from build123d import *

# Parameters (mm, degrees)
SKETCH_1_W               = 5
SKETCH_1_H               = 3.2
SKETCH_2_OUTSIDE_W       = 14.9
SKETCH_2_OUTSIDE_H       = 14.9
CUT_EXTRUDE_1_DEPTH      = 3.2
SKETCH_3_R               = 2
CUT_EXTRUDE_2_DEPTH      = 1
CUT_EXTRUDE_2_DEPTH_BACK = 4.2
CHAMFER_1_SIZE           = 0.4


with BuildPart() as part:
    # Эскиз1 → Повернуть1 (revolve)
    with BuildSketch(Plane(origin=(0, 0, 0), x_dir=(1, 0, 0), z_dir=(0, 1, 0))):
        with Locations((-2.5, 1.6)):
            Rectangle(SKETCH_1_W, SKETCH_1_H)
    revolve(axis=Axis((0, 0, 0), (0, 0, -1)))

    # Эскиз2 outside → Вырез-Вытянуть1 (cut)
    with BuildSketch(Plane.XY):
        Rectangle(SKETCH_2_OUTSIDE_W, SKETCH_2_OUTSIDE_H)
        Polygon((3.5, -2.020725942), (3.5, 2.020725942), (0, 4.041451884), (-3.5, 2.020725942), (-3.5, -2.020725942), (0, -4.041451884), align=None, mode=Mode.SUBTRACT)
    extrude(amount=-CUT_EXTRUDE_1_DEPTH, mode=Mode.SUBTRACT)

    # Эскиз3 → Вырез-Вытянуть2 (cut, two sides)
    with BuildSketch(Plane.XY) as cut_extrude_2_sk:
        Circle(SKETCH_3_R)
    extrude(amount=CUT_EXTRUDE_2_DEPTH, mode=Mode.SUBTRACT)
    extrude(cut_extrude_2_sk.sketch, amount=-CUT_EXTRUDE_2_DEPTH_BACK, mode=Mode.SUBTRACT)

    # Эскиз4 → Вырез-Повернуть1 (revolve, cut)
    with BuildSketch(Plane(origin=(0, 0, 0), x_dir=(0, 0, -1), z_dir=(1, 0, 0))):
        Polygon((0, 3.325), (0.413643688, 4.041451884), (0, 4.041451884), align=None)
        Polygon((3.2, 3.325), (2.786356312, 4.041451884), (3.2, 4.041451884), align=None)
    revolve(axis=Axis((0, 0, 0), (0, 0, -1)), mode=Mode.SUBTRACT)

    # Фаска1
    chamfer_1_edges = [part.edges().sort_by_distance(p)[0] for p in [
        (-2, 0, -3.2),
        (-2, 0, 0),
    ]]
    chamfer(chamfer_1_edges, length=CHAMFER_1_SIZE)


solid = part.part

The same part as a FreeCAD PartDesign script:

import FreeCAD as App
import Part
import Sketcher
Q = App.Units.Quantity


def edges_at(feature, points):
    """Names of the edges that pass closest to the given points."""
    edges = feature.Shape.Edges
    near = lambda p: min(range(len(edges)), key=lambda i: edges[i].distToShape(Part.Vertex(*p))[0])
    return sorted({f"Edge{near(p) + 1}" for p in points})

doc = App.newDocument("Part")
body = doc.addObject("PartDesign::Body", "Body")

# Sketch on XZ plane
sketch1 = body.newObject("Sketcher::SketchObject", "Sketch")
sketch1.AttachmentSupport = (doc.getObject("XZ_Plane"), [""])
sketch1.MapMode = "FlatFace"
sketch1.addGeometry([
    Part.LineSegment(App.Vector(-5, -3.2, 0), App.Vector(-5, 0, 0)),
    Part.LineSegment(App.Vector(-5, 0, 0), App.Vector(0, 0, 0)),
    Part.LineSegment(App.Vector(0, 0, 0), App.Vector(0, -3.2, 0)),
    Part.LineSegment(App.Vector(0, -3.2, 0), App.Vector(-5, -3.2, 0)),
], False)
sketch1.addConstraint([
    Sketcher.Constraint("Coincident", 0, 2, 1, 1),
    Sketcher.Constraint("Coincident", 1, 2, 2, 1),
    Sketcher.Constraint("Coincident", 2, 2, 3, 1),
    Sketcher.Constraint("Coincident", 3, 2, 0, 1),
    Sketcher.Constraint("Vertical", 0),
    Sketcher.Constraint("Horizontal", 1),
    Sketcher.Constraint("Vertical", 2),
    Sketcher.Constraint("Horizontal", 3),
    Sketcher.Constraint("Coincident", 1, 2, -1, 1),
    Sketcher.Constraint("DistanceX", 1, 1, 1, 2, 5.0),
    Sketcher.Constraint("DistanceY", 0, 1, 0, 2, 3.2),
])
revolution = body.newObject("PartDesign::Revolution", "Revolution")
revolution.Profile = sketch1
revolution.ReferenceAxis = (sketch1, ["V_Axis"])
revolution.Angle = 360

# Sketch on XY plane
sketch2 = body.newObject("Sketcher::SketchObject", "Sketch001")
sketch2.AttachmentSupport = (doc.getObject("XY_Plane"), [""])
sketch2.MapMode = "FlatFace"
sketch2.addGeometry([
    Part.LineSegment(App.Vector(-7.5, 7.5, 0), App.Vector(-7.5, -7.5, 0)),  # 0
    Part.LineSegment(App.Vector(-7.5, -7.5, 0), App.Vector(7.5, -7.5, 0)),  # 1
    Part.LineSegment(App.Vector(7.5, -7.5, 0), App.Vector(7.5, 7.5, 0)),  # 2
    Part.LineSegment(App.Vector(7.5, 7.5, 0), App.Vector(-7.5, 7.5, 0)),  # 3
    Part.LineSegment(App.Vector(3.5, 2, 0), App.Vector(3.5, -2, 0)),  # 4
    Part.LineSegment(App.Vector(3.5, -2, 0), App.Vector(0, -4, 0)),  # 5
    Part.LineSegment(App.Vector(0, -4, 0), App.Vector(-3.5, -2, 0)),  # 6
    Part.LineSegment(App.Vector(-3.5, -2, 0), App.Vector(-3.5, 2, 0)),  # 7
    Part.LineSegment(App.Vector(-3.5, 2, 0), App.Vector(0, 4, 0)),  # 8
    Part.LineSegment(App.Vector(0, 4, 0), App.Vector(3.5, 2, 0)),  # 9
], False)
sketch2.addConstraint([
    Sketcher.Constraint("Coincident", 0, 2, 1, 1),
    Sketcher.Constraint("Coincident", 1, 2, 2, 1),
    Sketcher.Constraint("Coincident", 2, 2, 3, 1),
    Sketcher.Constraint("Coincident", 3, 2, 0, 1),
    Sketcher.Constraint("Coincident", 4, 2, 5, 1),
    Sketcher.Constraint("Coincident", 5, 2, 6, 1),
    Sketcher.Constraint("Coincident", 6, 2, 7, 1),
    Sketcher.Constraint("Coincident", 7, 2, 8, 1),
    Sketcher.Constraint("Coincident", 8, 2, 9, 1),
    Sketcher.Constraint("Coincident", 9, 2, 4, 1),
    Sketcher.Constraint("Vertical", 0),
    Sketcher.Constraint("Horizontal", 1),
    Sketcher.Constraint("Vertical", 2),
    Sketcher.Constraint("Horizontal", 3),
    Sketcher.Constraint("Vertical", 4),
    Sketcher.Constraint("Vertical", 7),
    Sketcher.Constraint("Symmetric", 0, 2, 2, 2, -1, 1),
    Sketcher.Constraint("Symmetric", 4, 2, 7, 2, -1, 1),
    Sketcher.Constraint("Symmetric", 5, 2, 8, 2, -1, 1),
    Sketcher.Constraint("PointOnObject", 5, 2, -2),
    Sketcher.Constraint("Parallel", 6, 9),
    Sketcher.Constraint("Horizontal", 4, 2, 6, 2),
    Sketcher.Constraint("Equal", 3, 0),
    Sketcher.Constraint("Angle", 5, Q("-150 deg")),
    Sketcher.Constraint("DistanceX", 1, 1, 1, 2, 14.9),
    Sketcher.Constraint("DistanceX", 6, 2, 4, 2, 7.0),
    Sketcher.Constraint("DistanceY", 4, 2, 4, 1, 4.041452),
])
pocket1 = body.newObject("PartDesign::Pocket", "Pocket")
pocket1.Profile = sketch2
pocket1.Length = 3.2

# Sketch on XY plane
sketch3 = body.newObject("Sketcher::SketchObject", "Sketch002")
sketch3.AttachmentSupport = (doc.getObject("XY_Plane"), [""])
sketch3.MapMode = "FlatFace"
sketch3.addGeometry(Part.Circle(App.Vector(0, 0, 0), App.Vector(0, 0, 1), 2), False)
sketch3.addConstraint([
    Sketcher.Constraint("Coincident", 0, 3, -1, 1),
    Sketcher.Constraint("Diameter", 0, 4.0),
])
pocket2 = body.newObject("PartDesign::Pocket", "Pocket001")
pocket2.Profile = sketch3
pocket2.Type = "ThroughAll"
pocket2.Midplane = True

# Sketch on YZ plane
sketch4 = body.newObject("Sketcher::SketchObject", "Sketch003")
sketch4.AttachmentSupport = (doc.getObject("YZ_Plane"), [""])
sketch4.MapMode = "FlatFace"
sketch4.addGeometry([
    Part.LineSegment(App.Vector(3.33, 0, 0), App.Vector(4.04, -0.41, 0)),  # 0
    Part.LineSegment(App.Vector(4.04, -0.41, 0), App.Vector(4.04, 0, 0)),  # 1
    Part.LineSegment(App.Vector(4.04, 0, 0), App.Vector(3.33, 0, 0)),  # 2
    Part.LineSegment(App.Vector(4.04, -2.79, 0), App.Vector(3.33, -3.2, 0)),  # 3
    Part.LineSegment(App.Vector(3.33, -3.2, 0), App.Vector(4.04, -3.2, 0)),  # 4
    Part.LineSegment(App.Vector(4.04, -3.2, 0), App.Vector(4.04, -2.79, 0)),  # 5
], False)
sketch4.addConstraint([
    Sketcher.Constraint("Coincident", 0, 2, 1, 1),
    Sketcher.Constraint("Coincident", 1, 2, 2, 1),
    Sketcher.Constraint("Coincident", 2, 2, 0, 1),
    Sketcher.Constraint("Coincident", 3, 2, 4, 1),
    Sketcher.Constraint("Coincident", 4, 2, 5, 1),
    Sketcher.Constraint("Coincident", 5, 2, 3, 1),
    Sketcher.Constraint("Vertical", 1),
    Sketcher.Constraint("Horizontal", 2),
    Sketcher.Constraint("Horizontal", 4),
    Sketcher.Constraint("Vertical", 5),
    Sketcher.Constraint("PointOnObject", 1, 2, -1),
    Sketcher.Constraint("Vertical", 2, 2, 3, 2),
    Sketcher.Constraint("Vertical", 1, 2, 4, 2),
    Sketcher.Constraint("Equal", 1, 5),
    Sketcher.Constraint("Angle", 0, Q("-30 deg")),
    Sketcher.Constraint("DistanceY", 3, 2, -1, 1, 3.2),
    Sketcher.Constraint("DistanceX", -1, 1, 2, 2, 3.325),
    Sketcher.Constraint("DistanceX", 2, 2, 2, 1, 0.716452),
])
groove = body.newObject("PartDesign::Groove", "Groove")
groove.Profile = sketch4
groove.ReferenceAxis = (sketch4, ["V_Axis"])
groove.Angle = 360
doc.recompute()

chamfer = body.newObject("PartDesign::Chamfer", "Chamfer")
chamfer.Base = (groove, edges_at(groove, [(-2, 0, -3.2), (-2, 0, 0)]))
chamfer.Size = 0.4

doc.recompute()
